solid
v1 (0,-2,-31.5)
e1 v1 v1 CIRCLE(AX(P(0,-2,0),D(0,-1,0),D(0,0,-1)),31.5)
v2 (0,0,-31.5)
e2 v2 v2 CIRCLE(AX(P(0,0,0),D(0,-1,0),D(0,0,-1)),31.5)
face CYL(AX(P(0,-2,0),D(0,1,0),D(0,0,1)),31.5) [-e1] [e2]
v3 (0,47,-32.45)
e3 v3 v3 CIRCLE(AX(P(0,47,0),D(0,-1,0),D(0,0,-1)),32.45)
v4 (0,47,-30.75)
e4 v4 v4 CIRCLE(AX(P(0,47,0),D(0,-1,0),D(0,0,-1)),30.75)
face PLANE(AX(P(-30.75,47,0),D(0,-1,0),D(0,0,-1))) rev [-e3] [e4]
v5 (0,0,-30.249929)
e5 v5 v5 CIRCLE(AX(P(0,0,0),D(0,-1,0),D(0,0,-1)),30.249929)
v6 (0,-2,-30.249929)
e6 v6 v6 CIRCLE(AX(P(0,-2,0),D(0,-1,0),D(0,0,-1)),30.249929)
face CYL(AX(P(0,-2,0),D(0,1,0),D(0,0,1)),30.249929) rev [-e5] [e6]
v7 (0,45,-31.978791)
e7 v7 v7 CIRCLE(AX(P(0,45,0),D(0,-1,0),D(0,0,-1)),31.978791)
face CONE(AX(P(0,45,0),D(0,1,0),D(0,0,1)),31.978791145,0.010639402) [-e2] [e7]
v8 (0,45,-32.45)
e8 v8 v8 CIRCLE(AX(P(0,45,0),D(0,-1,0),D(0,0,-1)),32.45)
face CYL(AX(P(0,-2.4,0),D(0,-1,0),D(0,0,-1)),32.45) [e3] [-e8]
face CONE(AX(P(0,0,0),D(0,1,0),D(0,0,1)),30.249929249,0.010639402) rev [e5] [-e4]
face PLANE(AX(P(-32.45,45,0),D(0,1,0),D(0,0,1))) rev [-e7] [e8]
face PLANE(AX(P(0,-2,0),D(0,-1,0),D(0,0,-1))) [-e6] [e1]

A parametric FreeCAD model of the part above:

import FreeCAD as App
import Part
import Sketcher
from FreeCAD import Vector

doc = App.newDocument("Part")
body = doc.addObject("PartDesign::Body", "Body")

# Sketch on XY plane
sketch1 = body.newObject("Sketcher::SketchObject", "Sketch")
sketch1.AttachmentSupport = (doc.getObject("XY_Plane"), [""])
sketch1.MapMode = "FlatFace"
sketch1.addGeometry([
    Part.LineSegment(Vector(-31.98, 45, 0), Vector(-31.5, 0, 0)),  # 0
    Part.LineSegment(Vector(-31.5, 0, 0), Vector(-30.25, 0, 0)),  # 1
    Part.LineSegment(Vector(-30.25, 0, 0), Vector(-30.75, 47, 0)),  # 2
    Part.LineSegment(Vector(-30.75, 47, 0), Vector(-32.45, 47, 0)),  # 3
    Part.LineSegment(Vector(-32.45, 47, 0), Vector(-32.45, 45, 0)),  # 4
    Part.LineSegment(Vector(-32.45, 45, 0), Vector(-31.98, 45, 0)),  # 5
], False)
sketch1.addConstraint([
    Sketcher.Constraint("Coincident", 0, 2, 1, 1),
    Sketcher.Constraint("Coincident", 1, 2, 2, 1),
    Sketcher.Constraint("Coincident", 2, 2, 3, 1),
    Sketcher.Constraint("Coincident", 3, 2, 4, 1),
    Sketcher.Constraint("Coincident", 4, 2, 5, 1),
    Sketcher.Constraint("Coincident", 5, 2, 0, 1),
    Sketcher.Constraint("Horizontal", 1),
    Sketcher.Constraint("Horizontal", 3),
    Sketcher.Constraint("Vertical", 4),
    Sketcher.Constraint("Horizontal", 5),
    Sketcher.Constraint("PointOnObject", 0, 2, -1),
    Sketcher.Constraint("Parallel", 0, 2),
    Sketcher.Constraint("DistanceY", 4, 2, 4, 1, 2.0),
    Sketcher.Constraint("DistanceX", 3, 2, 3, 1, 1.7),
    Sketcher.Constraint("DistanceY", -1, 1, 2, 2, 47.0),
    Sketcher.Constraint("DistanceX", 0, 2, -1, 1, 31.5),
    Sketcher.Constraint("DistanceX", 2, 2, -1, 1, 30.75),
    Sketcher.Constraint("DistanceX", 1, 1, 1, 2, 1.250071),
])
revolution = body.newObject("PartDesign::Revolution", "Revolution")
revolution.Profile = sketch1
revolution.ReferenceAxis = (sketch1, ["V_Axis"])
revolution.Angle = 360

# Sketch on XZ plane
sketch2 = body.newObject("Sketcher::SketchObject", "Sketch001")
sketch2.AttachmentSupport = (doc.getObject("XZ_Plane"), [""])
sketch2.MapMode = "FlatFace"
sketch2.addGeometry([
    Part.Circle(Vector(0, 0, 0), Vector(0, 0, 1), 32),
    Part.Circle(Vector(0, 0, 0), Vector(0, 0, 1), 30),
], False)
sketch2.addConstraint([
    Sketcher.Constraint("Coincident", 0, 3, -1, 1),
    Sketcher.Constraint("Coincident", 1, 3, -1, 1),
    Sketcher.Constraint("Diameter", 0, 63.0),
    Sketcher.Constraint("Diameter", 1, 60.499858),
])
pad1 = body.newObject("PartDesign::Pad", "Pad")
pad1.Profile = sketch2
pad1.Length = 2

doc.recompute()
